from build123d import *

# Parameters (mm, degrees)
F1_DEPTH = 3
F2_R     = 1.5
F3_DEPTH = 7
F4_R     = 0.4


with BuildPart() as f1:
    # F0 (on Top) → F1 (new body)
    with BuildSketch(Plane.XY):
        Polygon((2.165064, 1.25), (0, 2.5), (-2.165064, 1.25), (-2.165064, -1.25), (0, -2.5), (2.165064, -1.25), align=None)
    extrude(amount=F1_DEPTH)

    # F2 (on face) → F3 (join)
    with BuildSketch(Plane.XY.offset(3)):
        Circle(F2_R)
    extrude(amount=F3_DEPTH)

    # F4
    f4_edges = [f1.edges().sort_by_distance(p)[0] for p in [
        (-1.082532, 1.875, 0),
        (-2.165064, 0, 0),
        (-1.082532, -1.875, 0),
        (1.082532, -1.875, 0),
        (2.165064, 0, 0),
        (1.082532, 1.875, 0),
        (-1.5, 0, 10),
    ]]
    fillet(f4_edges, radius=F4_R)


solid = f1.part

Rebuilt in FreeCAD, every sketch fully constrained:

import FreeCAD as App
import Part
import Sketcher
Q = App.Units.Quantity


def edges_at(feature, points):
    """Names of the edges that pass closest to the given points."""
    edges = feature.Shape.Edges
    near = lambda p: min(range(len(edges)), key=lambda i: edges[i].distToShape(Part.Vertex(*p))[0])
    return sorted({f"Edge{near(p) + 1}" for p in points})


def add_polygon(sketch, points):
    """Adds a closed chain of lines whose ends are joined by coincident constraints."""
    first, n = sketch.GeometryCount, len(points)
    for a, b in zip(points, points[1:] + points[:1]):
        sketch.addGeometry(Part.LineSegment(App.Vector(*a, 0), App.Vector(*b, 0)), False)
    for i in range(n):
        sketch.addConstraint(Sketcher.Constraint("Coincident", first + i, 2, first + (i + 1) % n, 1))

doc = App.newDocument("Part")
params = doc.addObject("Spreadsheet::Sheet", "Params")
for row, (alias, value) in enumerate([
    ("sketch1_height", "2.5 mm"),
    ("pad1_length", "3 mm"),
    ("sketch2_diameter", "3 mm"),
    ("pad2_length", "7 mm"),
    ("fillet_radius", "0.4 mm"),
], start=1):
    params.set(f"A{row}", alias)
    params.set(f"B{row}", "=" + value)
    params.setAlias(f"B{row}", alias)

body = doc.addObject("PartDesign::Body", "Body")

# Sketch on XY plane
sketch1 = doc.addObject("Sketcher::SketchObject", "Sketch")
body.addObject(sketch1)
sketch1.AttachmentSupport = (doc.XY_Plane, [""])
sketch1.MapMode = "FlatFace"
add_polygon(sketch1, [(2.2, 1.2), (0, 2.5), (-2.2, 1.2), (-2.2, -1.2), (0, -2.5), (2.2, -1.2)])  # lines 0-5
sketch1.addConstraint([
    Sketcher.Constraint("Vertical", 2),
    Sketcher.Constraint("Vertical", 5),
    Sketcher.Constraint("Symmetric", 0, 2, 3, 2, -1, 1),
    Sketcher.Constraint("Symmetric", 1, 2, 4, 2, -1, 1),
    Sketcher.Constraint("PointOnObject", 0, 2, -2),
    Sketcher.Constraint("Parallel", 0, 3),
    Sketcher.Constraint("Horizontal", 2, 2, 4, 2),
    Sketcher.Constraint("Angle", 0, Q("150.000006 deg")),
    Sketcher.Constraint("DistanceY", 2, 2, 2, 1, 2.5),
    Sketcher.Constraint("DistanceY", 3, 2, 0, 2, 5.0),
])
sketch1.setExpression("Constraints[14]", "Params.sketch1_height")
pad1 = doc.addObject("PartDesign::Pad", "Pad")
body.addObject(pad1)
pad1.Profile = sketch1
pad1.setExpression("Length", "Params.pad1_length")

# Sketch on XY plane
sketch2 = doc.addObject("Sketcher::SketchObject", "Sketch001")
body.addObject(sketch2)
sketch2.AttachmentSupport = (doc.XY_Plane, [""])
sketch2.MapMode = "FlatFace"
sketch2.AttachmentOffset = App.Placement(App.Vector(0, 0, 3), App.Rotation())
sketch2.addGeometry(Part.Circle(App.Vector(0, 0, 0), App.Vector(0, 0, 1), 1.5), False)
sketch2.addConstraint([
    Sketcher.Constraint("Coincident", 0, 3, -1, 1),
    Sketcher.Constraint("Diameter", 0, 3.0),
])
sketch2.setExpression("Constraints[1]", "Params.sketch2_diameter")
pad2 = doc.addObject("PartDesign::Pad", "Pad001")
body.addObject(pad2)
pad2.Profile = sketch2
pad2.setExpression("Length", "Params.pad2_length")
doc.recompute()

fillet = doc.addObject("PartDesign::Fillet", "Fillet")
body.addObject(fillet)
fillet.Base = (pad2, edges_at(pad2, [
    (-1.083, 1.875, 0),
    (-2.165, 0, 0),
    (-1.083, -1.875, 0),
    (1.083, -1.875, 0),
    (2.165, 0, 0),
    (1.083, 1.875, 0),
    (-1.5, 0, 10),
]))
fillet.setExpression("Radius", "Params.fillet_radius")

doc.recompute()
